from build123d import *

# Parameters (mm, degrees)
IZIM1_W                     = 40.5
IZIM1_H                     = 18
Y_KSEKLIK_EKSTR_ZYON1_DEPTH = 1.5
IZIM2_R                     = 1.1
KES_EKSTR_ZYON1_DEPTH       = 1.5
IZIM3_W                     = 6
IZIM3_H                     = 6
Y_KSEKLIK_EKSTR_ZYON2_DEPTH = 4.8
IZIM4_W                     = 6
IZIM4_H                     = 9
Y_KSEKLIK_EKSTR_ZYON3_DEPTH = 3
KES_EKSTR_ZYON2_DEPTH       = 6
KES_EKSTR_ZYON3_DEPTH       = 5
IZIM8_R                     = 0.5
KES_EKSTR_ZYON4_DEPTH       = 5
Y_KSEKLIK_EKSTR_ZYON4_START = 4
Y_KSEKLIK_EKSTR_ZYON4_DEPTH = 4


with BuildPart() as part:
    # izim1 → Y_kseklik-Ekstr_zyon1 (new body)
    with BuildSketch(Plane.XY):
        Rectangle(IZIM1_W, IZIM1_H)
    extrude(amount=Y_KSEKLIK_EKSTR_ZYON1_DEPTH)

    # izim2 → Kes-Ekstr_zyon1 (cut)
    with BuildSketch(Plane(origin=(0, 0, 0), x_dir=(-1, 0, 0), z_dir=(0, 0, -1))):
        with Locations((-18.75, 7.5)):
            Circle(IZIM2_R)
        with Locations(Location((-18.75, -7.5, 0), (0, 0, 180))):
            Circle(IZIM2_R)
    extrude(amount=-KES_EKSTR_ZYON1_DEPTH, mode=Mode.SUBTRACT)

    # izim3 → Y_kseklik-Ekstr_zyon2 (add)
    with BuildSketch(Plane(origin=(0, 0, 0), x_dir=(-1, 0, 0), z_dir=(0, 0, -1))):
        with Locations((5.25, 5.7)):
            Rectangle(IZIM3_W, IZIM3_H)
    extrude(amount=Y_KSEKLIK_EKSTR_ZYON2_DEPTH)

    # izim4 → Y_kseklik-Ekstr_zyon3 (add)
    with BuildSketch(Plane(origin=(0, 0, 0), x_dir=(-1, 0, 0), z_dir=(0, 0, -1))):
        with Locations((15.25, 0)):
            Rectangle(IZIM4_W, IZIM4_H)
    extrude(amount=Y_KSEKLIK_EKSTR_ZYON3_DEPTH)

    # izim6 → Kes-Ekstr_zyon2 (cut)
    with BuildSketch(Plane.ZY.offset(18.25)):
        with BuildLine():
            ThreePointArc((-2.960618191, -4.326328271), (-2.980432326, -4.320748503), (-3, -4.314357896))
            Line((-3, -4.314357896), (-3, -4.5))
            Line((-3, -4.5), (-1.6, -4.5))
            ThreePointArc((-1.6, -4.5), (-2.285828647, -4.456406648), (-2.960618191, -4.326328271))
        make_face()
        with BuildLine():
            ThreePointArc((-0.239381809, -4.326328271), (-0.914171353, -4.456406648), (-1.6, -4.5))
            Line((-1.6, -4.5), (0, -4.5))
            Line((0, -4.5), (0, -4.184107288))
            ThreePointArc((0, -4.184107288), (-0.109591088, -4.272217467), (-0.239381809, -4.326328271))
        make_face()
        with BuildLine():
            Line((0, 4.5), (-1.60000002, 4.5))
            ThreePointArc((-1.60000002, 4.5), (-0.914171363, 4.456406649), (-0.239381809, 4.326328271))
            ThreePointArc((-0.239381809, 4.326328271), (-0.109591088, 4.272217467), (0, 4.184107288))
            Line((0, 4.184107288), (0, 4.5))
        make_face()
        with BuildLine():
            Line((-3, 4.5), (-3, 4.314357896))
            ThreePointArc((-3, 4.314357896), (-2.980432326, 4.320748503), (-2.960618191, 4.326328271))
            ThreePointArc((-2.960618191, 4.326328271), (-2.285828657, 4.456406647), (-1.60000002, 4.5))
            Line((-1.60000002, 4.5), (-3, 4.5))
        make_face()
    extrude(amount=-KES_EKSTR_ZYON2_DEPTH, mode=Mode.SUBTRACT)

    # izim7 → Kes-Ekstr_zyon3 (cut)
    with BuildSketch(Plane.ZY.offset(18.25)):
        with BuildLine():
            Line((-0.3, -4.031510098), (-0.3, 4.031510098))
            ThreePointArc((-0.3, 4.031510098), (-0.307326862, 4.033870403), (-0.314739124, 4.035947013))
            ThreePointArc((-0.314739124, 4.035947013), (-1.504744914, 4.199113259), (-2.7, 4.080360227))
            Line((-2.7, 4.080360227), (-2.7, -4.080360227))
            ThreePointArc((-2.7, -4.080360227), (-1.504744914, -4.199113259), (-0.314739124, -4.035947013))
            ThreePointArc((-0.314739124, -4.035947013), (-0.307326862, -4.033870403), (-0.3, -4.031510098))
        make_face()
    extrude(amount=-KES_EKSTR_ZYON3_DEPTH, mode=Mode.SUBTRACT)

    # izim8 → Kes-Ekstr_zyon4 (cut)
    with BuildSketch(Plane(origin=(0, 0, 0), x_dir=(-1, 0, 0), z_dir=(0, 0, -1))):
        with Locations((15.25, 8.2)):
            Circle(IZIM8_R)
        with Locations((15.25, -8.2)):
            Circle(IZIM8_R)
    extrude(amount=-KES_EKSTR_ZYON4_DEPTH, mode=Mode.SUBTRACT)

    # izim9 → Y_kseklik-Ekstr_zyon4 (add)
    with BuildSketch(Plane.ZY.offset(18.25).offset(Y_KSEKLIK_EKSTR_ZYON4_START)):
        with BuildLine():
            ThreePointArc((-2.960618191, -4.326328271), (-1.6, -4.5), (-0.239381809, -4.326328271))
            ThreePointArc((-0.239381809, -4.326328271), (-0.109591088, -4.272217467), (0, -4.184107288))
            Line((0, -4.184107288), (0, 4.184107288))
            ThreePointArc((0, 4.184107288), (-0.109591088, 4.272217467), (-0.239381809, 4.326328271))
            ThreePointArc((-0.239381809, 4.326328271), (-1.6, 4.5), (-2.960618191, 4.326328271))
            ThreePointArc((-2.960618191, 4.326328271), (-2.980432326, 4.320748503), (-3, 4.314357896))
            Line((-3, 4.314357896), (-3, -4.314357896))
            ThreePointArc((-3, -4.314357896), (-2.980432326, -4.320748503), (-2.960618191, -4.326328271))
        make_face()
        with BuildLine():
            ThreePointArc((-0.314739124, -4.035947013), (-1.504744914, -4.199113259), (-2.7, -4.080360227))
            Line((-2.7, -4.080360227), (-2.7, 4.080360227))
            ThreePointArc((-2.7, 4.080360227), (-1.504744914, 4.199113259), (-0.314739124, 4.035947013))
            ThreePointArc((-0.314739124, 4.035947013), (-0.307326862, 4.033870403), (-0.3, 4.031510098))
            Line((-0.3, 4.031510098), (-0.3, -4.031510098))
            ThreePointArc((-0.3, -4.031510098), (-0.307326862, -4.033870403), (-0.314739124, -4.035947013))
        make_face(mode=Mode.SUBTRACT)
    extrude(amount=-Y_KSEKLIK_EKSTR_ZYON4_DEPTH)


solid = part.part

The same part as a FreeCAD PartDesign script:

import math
import FreeCAD as App
import Part
import Sketcher
Q = App.Units.Quantity


def add_polygon(sketch, points):
    """Adds a closed chain of lines whose ends are joined by coincident constraints."""
    first, n = sketch.GeometryCount, len(points)
    for a, b in zip(points, points[1:] + points[:1]):
        sketch.addGeometry(Part.LineSegment(App.Vector(*a, 0), App.Vector(*b, 0)), False)
    for i in range(n):
        sketch.addConstraint(Sketcher.Constraint("Coincident", first + i, 2, first + (i + 1) % n, 1))

doc = App.newDocument("Part")
params = doc.addObject("Spreadsheet::Sheet", "Params")
for row, (alias, value) in enumerate([
    ("sketch1_height", "18 mm"),
    ("sketch1_width", "40.5 mm"),
    ("pad1_length", "1.5 mm"),
    ("sketch2_diameter", "2.2 mm"),
    ("pocket1_length", "1.5 mm"),
    ("sketch3_width", "6 mm"),
    ("pad2_length", "4.8 mm"),
    ("sketch4_width", "6 mm"),
    ("sketch4_height", "9 mm"),
    ("pad3_length", "3 mm"),
    ("sketch5_radius", "0.499999 mm"),
    ("sketch5_height", "1.4 mm"),
    ("sketch5_height2", "1.6 mm"),
    ("pocket2_length", "6 mm"),
    ("sketch6_radius", "0.2 mm"),
    ("pocket3_length", "5 mm"),
    ("sketch7_diameter", "1 mm"),
    ("pocket4_length", "5 mm"),
    ("sketch8_radius", "0.5 mm"),
    ("sketch8_radius2", "0.2 mm"),
    ("pad4_length", "4 mm"),
], start=1):
    params.set(f"A{row}", alias)
    params.set(f"B{row}", "=" + value)
    params.setAlias(f"B{row}", alias)

body = doc.addObject("PartDesign::Body", "Body")

# Sketch on XY plane
sketch1 = body.newObject("Sketcher::SketchObject", "Sketch")
sketch1.AttachmentSupport = (doc.getObject("XY_Plane"), [""])
sketch1.MapMode = "FlatFace"
add_polygon(sketch1, [(-20, 9), (-20, -9), (20, -9), (20, 9)])  # lines 0-3
sketch1.addConstraint([
    Sketcher.Constraint("Vertical", 0),
    Sketcher.Constraint("Horizontal", 1),
    Sketcher.Constraint("Vertical", 2),
    Sketcher.Constraint("Horizontal", 3),
    Sketcher.Constraint("Symmetric", 0, 2, 2, 2, -1, 1),
    Sketcher.Constraint("DistanceY", 0, 2, 0, 1, Q("18 mm")),
    Sketcher.Constraint("DistanceX", 1, 1, 1, 2, Q("40.5 mm")),
])
sketch1.setExpression("Constraints[9]", "Params.sketch1_height")
sketch1.setExpression("Constraints[10]", "Params.sketch1_width")
pad1 = body.newObject("PartDesign::Pad", "Pad")
pad1.Profile = sketch1
pad1.setExpression("Length", "Params.pad1_length")

# Sketch on XY plane
sketch2 = body.newObject("Sketcher::SketchObject", "Sketch001")
sketch2.AttachmentSupport = (doc.getObject("XY_Plane"), [""])
sketch2.MapMode = "FlatFace"
sketch2.addGeometry([
    Part.Circle(App.Vector(18.8, 7.5, 0), App.Vector(0, 0, 1), 1.1),
    Part.Circle(App.Vector(18.8, -7.5, 0), App.Vector(0, 0, 1), 1.1),
], False)
sketch2.addConstraint([
    Sketcher.Constraint("Equal", 0, 1),
    Sketcher.Constraint("Symmetric", 0, 3, 1, 3, -1),
    Sketcher.Constraint("Diameter", 0, Q("2.2 mm")),
    Sketcher.Constraint("DistanceY", 1, 3, 0, 3, Q("15 mm")),
    Sketcher.Constraint("DistanceX", -1, 1, 0, 3, Q("18.75 mm")),
])
sketch2.setExpression("Constraints[2]", "Params.sketch2_diameter")
pocket1 = body.newObject("PartDesign::Pocket", "Pocket")
pocket1.Profile = sketch2
pocket1.setExpression("Length", "Params.pocket1_length")
pocket1.Reversed = True

# Sketch on XY plane
sketch3 = body.newObject("Sketcher::SketchObject", "Sketch002")
sketch3.AttachmentSupport = (doc.getObject("XY_Plane"), [""])
sketch3.MapMode = "FlatFace"
add_polygon(sketch3, [(-2, 9), (-2, 3), (-8, 3), (-8, 9)])  # lines 0-3
sketch3.addConstraint([
    Sketcher.Constraint("Vertical", 0),
    Sketcher.Constraint("Horizontal", 1),
    Sketcher.Constraint("Vertical", 2),
    Sketcher.Constraint("Horizontal", 3),
    Sketcher.Constraint("Equal", 3, 0),
    Sketcher.Constraint("DistanceX", 1, 2, 1, 1, Q("6 mm")),
    Sketcher.Constraint("DistanceY", -1, 1, 0, 2, Q("2.7 mm")),
    Sketcher.Constraint("DistanceX", 0, 2, -1, 1, Q("2.25 mm")),
])
sketch3.setExpression("Constraints[9]", "Params.sketch3_width")
pad2 = body.newObject("PartDesign::Pad", "Pad001")
pad2.Profile = sketch3
pad2.setExpression("Length", "Params.pad2_length")
pad2.Reversed = True

# Sketch on XY plane
sketch4 = body.newObject("Sketcher::SketchObject", "Sketch003")
sketch4.AttachmentSupport = (doc.getObject("XY_Plane"), [""])
sketch4.MapMode = "FlatFace"
add_polygon(sketch4, [(-12, 4), (-12, -4), (-18, -4), (-18, 4)])  # lines 0-3
sketch4.addConstraint([
    Sketcher.Constraint("Vertical", 0),
    Sketcher.Constraint("Horizontal", 1),
    Sketcher.Constraint("Vertical", 2),
    Sketcher.Constraint("Horizontal", 3),
    Sketcher.Constraint("DistanceX", 1, 2, 1, 1, Q("6 mm")),
    Sketcher.Constraint("DistanceY", 0, 2, 0, 1, Q("9 mm")),
    Sketcher.Constraint("DistanceY", 0, 2, -1, 1, Q("4.5 mm")),
    Sketcher.Constraint("DistanceX", 0, 2, -1, 1, Q("12.25 mm")),
])
sketch4.setExpression("Constraints[8]", "Params.sketch4_width")
sketch4.setExpression("Constraints[9]", "Params.sketch4_height")
pad3 = body.newObject("PartDesign::Pad", "Pad002")
pad3.Profile = sketch4
pad3.setExpression("Length", "Params.pad3_length")
pad3.Reversed = True

# Sketch on YZ plane
sketch5 = body.newObject("Sketcher::SketchObject", "Sketch004")
sketch5.AttachmentSupport = (doc.getObject("YZ_Plane"), [""])
sketch5.MapMode = "FlatFace"
sketch5.AttachmentOffset = App.Placement(App.Vector(0, 0, -18.25), App.Rotation())
sketch5.addGeometry([
    Part.ArcOfCircle(Part.Circle(App.Vector(-3.842, -2.835, 0), App.Vector(0, 0, 1), 0.5), math.radians(-165.45), math.radians(-160.73)),  # 0
    Part.LineSegment(App.Vector(-4.314, -3, 0), App.Vector(-4.5, -3, 0)),  # 1
    Part.LineSegment(App.Vector(-4.5, -3, 0), App.Vector(-4.5, -1.6, 0)),  # 2
    Part.ArcOfCircle(Part.Circle(App.Vector(0.917, -1.6, 0), App.Vector(0, 0, 1), 5.417), math.radians(180), math.radians(194.55)),  # 3
    Part.ArcOfCircle(Part.Circle(App.Vector(0.917, -1.6, 0), App.Vector(0, 0, 1), 5.417), math.radians(165.45), math.radians(180)),  # 4
    Part.LineSegment(App.Vector(-4.5, -1.6, 0), App.Vector(-4.5, 0, 0)),  # 5
    Part.LineSegment(App.Vector(-4.5, 0, 0), App.Vector(-4.184, 0, 0)),  # 6
    Part.ArcOfCircle(Part.Circle(App.Vector(-3.842, -0.365, 0), App.Vector(0, 0, 1), 0.5), math.radians(133), math.radians(165)),  # 7
    Part.LineSegment(App.Vector(4.5, 0, 0), App.Vector(4.5, -1.6, 0)),  # 8
    Part.ArcOfCircle(Part.Circle(App.Vector(-0.917, -1.6, 0), App.Vector(0, 0, 1), 5.417), math.radians(0), math.radians(14.55)),  # 9
    Part.ArcOfCircle(Part.Circle(App.Vector(3.842, -0.365, 0), App.Vector(0, 0, 1), 0.5), math.radians(15), math.radians(47)),  # 10
    Part.LineSegment(App.Vector(4.184, 0, 0), App.Vector(4.5, 0, 0)),  # 11
    Part.LineSegment(App.Vector(4.5, -3, 0), App.Vector(4.314, -3, 0)),  # 12
    Part.ArcOfCircle(Part.Circle(App.Vector(3.842, -2.835, 0), App.Vector(0, 0, 1), 0.5), math.radians(-19.27), math.radians(-14.55)),  # 13
    Part.ArcOfCircle(Part.Circle(App.Vector(-0.917, -1.6, 0), App.Vector(0, 0, 1), 5.417), math.radians(-14.55), math.radians(0)),  # 14
    Part.LineSegment(App.Vector(4.5, -1.6, 0), App.Vector(4.5, -3, 0)),  # 15
], False)
sketch5.addConstraint([
    Sketcher.Constraint("Coincident", 0, 2, 1, 1),
    Sketcher.Constraint("Coincident", 1, 2, 2, 1),
    Sketcher.Constraint("Tangent", 2, 2, 3, 1),
    Sketcher.Constraint("Tangent", 3, 2, 0, 1),
    Sketcher.Constraint("Tangent", 4, 2, 5, 1),
    Sketcher.Constraint("Coincident", 5, 2, 6, 1),
    Sketcher.Constraint("Coincident", 6, 2, 7, 1),
    Sketcher.Constraint("Tangent", 7, 2, 4, 1),
    Sketcher.Constraint("Tangent", 8, 2, 9, 1),
    Sketcher.Constraint("Tangent", 9, 2, 10, 1),
    Sketcher.Constraint("Coincident", 10, 2, 11, 1),
    Sketcher.Constraint("Coincident", 11, 2, 8, 1),
    Sketcher.Constraint("Coincident", 12, 2, 13, 1),
    Sketcher.Constraint("Tangent", 13, 2, 14, 1),
    Sketcher.Constraint("Tangent", 14, 2, 15, 1),
    Sketcher.Constraint("Coincident", 15, 2, 12, 1),
    Sketcher.Constraint("Horizontal", 1),
    Sketcher.Constraint("Vertical", 2),
    Sketcher.Constraint("Vertical", 5),
    Sketcher.Constraint("Horizontal", 6),
    Sketcher.Constraint("Vertical", 8),
    Sketcher.Constraint("Horizontal", 11),
    Sketcher.Constraint("Horizontal", 12),
    Sketcher.Constraint("Vertical", 15),
    Sketcher.Constraint("Coincident", 4, 3, 3, 3),
    Sketcher.Constraint("Coincident", 14, 3, 9, 3),
    Sketcher.Constraint("Equal", 3, 4),
    Sketcher.Constraint("Equal", 0, 7),
    Sketcher.Constraint("Equal", 4, 9),
    Sketcher.Constraint("Equal", 7, 10),
    Sketcher.Constraint("Equal", 10, 13),
    Sketcher.Constraint("Equal", 9, 14),
    Sketcher.Constraint("Symmetric", 6, 2, 10, 2, -1, 1),
    Sketcher.Constraint("Symmetric", 3, 3, 9, 3, -2),
    Sketcher.Constraint("Symmetric", 0, 2, 12, 2, -2),
    Sketcher.Constraint("PointOnObject", 5, 2, -1),
    Sketcher.Constraint("Vertical", 0, 3, 7, 3),
    Sketcher.Constraint("Radius", 0, Q("0.499999 mm")),
    Sketcher.Constraint("DistanceY", 2, 1, 2, 2, Q("1.4 mm")),
    Sketcher.Constraint("DistanceY", 5, 1, 5, 2, Q("1.6 mm")),
    Sketcher.Constraint("DistanceX", 1, 2, -1, 1, Q("4.5 mm")),
    Sketcher.Constraint("Radius", 3, Q("5.416667 mm")),
    Sketcher.Constraint("DistanceX", 0, 2, 7, 3, Q("0.471998 mm")),
])
sketch5.setExpression("Constraints[37]", "Params.sketch5_radius")
sketch5.setExpression("Constraints[38]", "Params.sketch5_height")
sketch5.setExpression("Constraints[39]", "Params.sketch5_height2")
pocket2 = body.newObject("PartDesign::Pocket", "Pocket001")
pocket2.Profile = sketch5
pocket2.setExpression("Length", "Params.pocket2_length")
pocket2.Reversed = True

# Sketch on YZ plane
sketch6 = body.newObject("Sketcher::SketchObject", "Sketch005")
sketch6.AttachmentSupport = (doc.getObject("YZ_Plane"), [""])
sketch6.MapMode = "FlatFace"
sketch6.AttachmentOffset = App.Placement(App.Vector(0, 0, -18.25), App.Rotation())
sketch6.addGeometry([
    Part.LineSegment(App.Vector(-4.032, -0.3, 0), App.Vector(4.032, -0.3, 0)),  # 0
    Part.ArcOfCircle(Part.Circle(App.Vector(3.842, -0.365, 0), App.Vector(0, 0, 1), 0.2), math.radians(14.55), math.radians(18.96)),  # 1
    Part.ArcOfCircle(Part.Circle(App.Vector(-0.917, -1.6, 0), App.Vector(0, 0, 1), 5.117), math.radians(-12), math.radians(15)),  # 2
    Part.LineSegment(App.Vector(4.08, -2.7, 0), App.Vector(-4.08, -2.7, 0)),  # 3
    Part.ArcOfCircle(Part.Circle(App.Vector(0.917, -1.6, 0), App.Vector(0, 0, 1), 5.117), math.radians(165), math.radians(192)),  # 4
    Part.ArcOfCircle(Part.Circle(App.Vector(-3.842, -0.365, 0), App.Vector(0, 0, 1), 0.2), math.radians(161.04), math.radians(165.45)),  # 5
], False)
sketch6.addConstraint([
    Sketcher.Constraint("Coincident", 0, 2, 1, 2),
    Sketcher.Constraint("Tangent", 1, 1, 2, 2),
    Sketcher.Constraint("Coincident", 2, 1, 3, 1),
    Sketcher.Constraint("Coincident", 3, 2, 4, 2),
    Sketcher.Constraint("Tangent", 4, 1, 5, 2),
    Sketcher.Constraint("Coincident", 5, 1, 0, 1),
    Sketcher.Constraint("Horizontal", 0),
    Sketcher.Constraint("Horizontal", 3),
    Sketcher.Constraint("Equal", 2, 4),
    Sketcher.Constraint("Equal", 1, 5),
    Sketcher.Constraint("Symmetric", 2, 3, 4, 3, -2),
    Sketcher.Constraint("Horizontal", 1, 3, 5, 3),
    Sketcher.Constraint("Radius", 1, Q("0.2 mm")),
    Sketcher.Constraint("DistanceY", 2, 3, -1, 1, Q("1.6 mm")),
    Sketcher.Constraint("DistanceY", 0, 2, -1, 1, Q("0.3 mm")),
    Sketcher.Constraint("DistanceY", 2, 1, -1, 1, Q("2.7 mm")),
    Sketcher.Constraint("Radius", 2, Q("5.116667 mm")),
    Sketcher.Constraint("DistanceX", 1, 3, 2, 1, Q("0.238 mm")),
    Sketcher.Constraint("DistanceX", 0, 1, 0, 2, Q("8.06302 mm")),
])
sketch6.setExpression("Constraints[12]", "Params.sketch6_radius")
pocket3 = body.newObject("PartDesign::Pocket", "Pocket002")
pocket3.Profile = sketch6
pocket3.setExpression("Length", "Params.pocket3_length")
pocket3.Reversed = True

# Sketch on XY plane
sketch7 = body.newObject("Sketcher::SketchObject", "Sketch006")
sketch7.AttachmentSupport = (doc.getObject("XY_Plane"), [""])
sketch7.MapMode = "FlatFace"
sketch7.addGeometry([
    Part.Circle(App.Vector(-15.2, 8.2, 0), App.Vector(0, 0, 1), 0.5),
    Part.Circle(App.Vector(-15.2, -8.2, 0), App.Vector(0, 0, 1), 0.5),
], False)
sketch7.addConstraint([
    Sketcher.Constraint("Equal", 0, 1),
    Sketcher.Constraint("Symmetric", 0, 3, 1, 3, -1),
    Sketcher.Constraint("Diameter", 0, Q("1 mm")),
    Sketcher.Constraint("DistanceY", -1, 1, 0, 3, Q("8.2 mm")),
    Sketcher.Constraint("DistanceX", 0, 3, -1, 1, Q("15.25 mm")),
])
sketch7.setExpression("Constraints[2]", "Params.sketch7_diameter")
pocket4 = body.newObject("PartDesign::Pocket", "Pocket003")
pocket4.Profile = sketch7
pocket4.setExpression("Length", "Params.pocket4_length")
pocket4.Reversed = True

# Sketch on YZ plane
sketch8 = body.newObject("Sketcher::SketchObject", "Sketch007")
sketch8.AttachmentSupport = (doc.getObject("YZ_Plane"), [""])
sketch8.MapMode = "FlatFace"
sketch8.AttachmentOffset = App.Placement(App.Vector(0, 0, -22.25), App.Rotation())
sketch8.addGeometry([
    Part.ArcOfCircle(Part.Circle(App.Vector(0.917, -1.6, 0), App.Vector(0, 0, 1), 5.417), math.radians(165), math.radians(195)),  # 0
    Part.ArcOfCircle(Part.Circle(App.Vector(-3.842, -0.365, 0), App.Vector(0, 0, 1), 0.5), math.radians(133), math.radians(165)),  # 1
    Part.LineSegment(App.Vector(-4.184, 0, 0), App.Vector(4.184, 0, 0)),  # 2
    Part.ArcOfCircle(Part.Circle(App.Vector(3.842, -0.365, 0), App.Vector(0, 0, 1), 0.5), math.radians(15), math.radians(47)),  # 3
    Part.ArcOfCircle(Part.Circle(App.Vector(-0.917, -1.6, 0), App.Vector(0, 0, 1), 5.417), math.radians(-15), math.radians(15)),  # 4
    Part.ArcOfCircle(Part.Circle(App.Vector(3.842, -2.835, 0), App.Vector(0, 0, 1), 0.5), math.radians(-19.27), math.radians(-14.55)),  # 5
    Part.LineSegment(App.Vector(4.314, -3, 0), App.Vector(-4.314, -3, 0)),  # 6
    Part.ArcOfCircle(Part.Circle(App.Vector(-3.842, -2.835, 0), App.Vector(0, 0, 1), 0.5), math.radians(-165.45), math.radians(-160.73)),  # 7
    Part.ArcOfCircle(Part.Circle(App.Vector(-3.842, -0.365, 0), App.Vector(0, 0, 1), 0.2), math.radians(161.04), math.radians(165.45)),  # 8
    Part.ArcOfCircle(Part.Circle(App.Vector(0.917, -1.6, 0), App.Vector(0, 0, 1), 5.117), math.radians(165), math.radians(192)),  # 9
    Part.LineSegment(App.Vector(-4.08, -2.7, 0), App.Vector(4.08, -2.7, 0)),  # 10
    Part.ArcOfCircle(Part.Circle(App.Vector(-0.917, -1.6, 0), App.Vector(0, 0, 1), 5.117), math.radians(-12), math.radians(15)),  # 11
    Part.ArcOfCircle(Part.Circle(App.Vector(3.842, -0.365, 0), App.Vector(0, 0, 1), 0.2), math.radians(14.55), math.radians(18.96)),  # 12
    Part.LineSegment(App.Vector(4.032, -0.3, 0), App.Vector(-4.032, -0.3, 0)),  # 13
], False)
sketch8.addConstraint([
    Sketcher.Constraint("Tangent", 0, 1, 1, 2),
    Sketcher.Constraint("Coincident", 1, 1, 2, 1),
    Sketcher.Constraint("Coincident", 2, 2, 3, 2),
    Sketcher.Constraint("Tangent", 3, 1, 4, 2),
    Sketcher.Constraint("Tangent", 4, 1, 5, 2),
    Sketcher.Constraint("Coincident", 5, 1, 6, 1),
    Sketcher.Constraint("Coincident", 6, 2, 7, 2),
    Sketcher.Constraint("Tangent", 7, 1, 0, 2),
    Sketcher.Constraint("Tangent", 8, 2, 9, 1),
    Sketcher.Constraint("Coincident", 9, 2, 10, 1),
    Sketcher.Constraint("Coincident", 10, 2, 11, 1),
    Sketcher.Constraint("Tangent", 11, 2, 12, 1),
    Sketcher.Constraint("Coincident", 12, 2, 13, 1),
    Sketcher.Constraint("Coincident", 13, 2, 8, 1),
    Sketcher.Constraint("Horizontal", 2),
    Sketcher.Constraint("Horizontal", 6),
    Sketcher.Constraint("Horizontal", 10),
    Sketcher.Constraint("Horizontal", 13),
    Sketcher.Constraint("Coincident", 8, 3, 1, 3),
    Sketcher.Constraint("Coincident", 9, 3, 0, 3),
    Sketcher.Constraint("Coincident", 11, 3, 4, 3),
    Sketcher.Constraint("Coincident", 12, 3, 3, 3),
    Sketcher.Constraint("Equal", 1, 3),
    Sketcher.Constraint("Equal", 0, 4),
    Sketcher.Constraint("Equal", 3, 5),
    Sketcher.Constraint("Equal", 5, 7),
    Sketcher.Constraint("Equal", 9, 11),
    Sketcher.Constraint("Symmetric", 1, 1, 2, 2, -1, 1),
    Sketcher.Constraint("Symmetric", 0, 3, 4, 3, -2),
    Sketcher.Constraint("Horizontal", 5, 3, 7, 3),
    Sketcher.Constraint("Vertical", 3, 3, 5, 3),
    Sketcher.Constraint("Radius", 1, Q("0.5 mm")),
    Sketcher.Constraint("Radius", 8, Q("0.2 mm")),
    Sketcher.Constraint("DistanceY", 5, 1, -1, 1, Q("3 mm")),
    Sketcher.Constraint("DistanceY", 0, 3, -1, 1, Q("1.6 mm")),
    Sketcher.Constraint("DistanceY", 9, 2, -1, 1, Q("2.7 mm")),
    Sketcher.Constraint("DistanceY", 12, 2, -1, 1, Q("0.3 mm")),
    Sketcher.Constraint("Radius", 0, Q("5.416667 mm")),
    Sketcher.Constraint("DistanceX", 3, 3, 5, 1, Q("0.471998 mm")),
    Sketcher.Constraint("DistanceX", 10, 1, 10, 2, Q("8.16072 mm")),
])
sketch8.setExpression("Constraints[31]", "Params.sketch8_radius")
sketch8.setExpression("Constraints[32]", "Params.sketch8_radius2")
pad4 = body.newObject("PartDesign::Pad", "Pad003")
pad4.Profile = sketch8
pad4.setExpression("Length", "Params.pad4_length")

doc.recompute()
